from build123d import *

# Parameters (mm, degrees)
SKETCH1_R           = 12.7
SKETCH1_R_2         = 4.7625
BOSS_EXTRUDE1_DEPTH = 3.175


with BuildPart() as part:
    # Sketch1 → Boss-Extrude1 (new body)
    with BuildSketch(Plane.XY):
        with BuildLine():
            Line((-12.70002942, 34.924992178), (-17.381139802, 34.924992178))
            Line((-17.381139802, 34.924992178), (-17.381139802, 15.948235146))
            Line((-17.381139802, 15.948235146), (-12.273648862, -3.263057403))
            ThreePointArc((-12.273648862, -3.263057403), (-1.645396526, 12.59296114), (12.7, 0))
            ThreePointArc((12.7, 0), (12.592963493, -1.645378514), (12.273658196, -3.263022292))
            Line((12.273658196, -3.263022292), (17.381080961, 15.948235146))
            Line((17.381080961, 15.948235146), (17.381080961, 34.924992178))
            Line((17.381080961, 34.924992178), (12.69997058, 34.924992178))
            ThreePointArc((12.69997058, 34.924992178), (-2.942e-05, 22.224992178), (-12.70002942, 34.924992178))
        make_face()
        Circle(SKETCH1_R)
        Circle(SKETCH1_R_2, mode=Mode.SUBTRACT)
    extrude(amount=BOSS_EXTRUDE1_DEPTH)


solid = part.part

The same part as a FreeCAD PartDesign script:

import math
import FreeCAD as App
import Part
import Sketcher

V = App.Vector
Q = App.Units.Quantity

doc = App.newDocument("Part")
body = doc.addObject("PartDesign::Body", "Body")

# Sketch on XY plane
sketch1 = doc.addObject("Sketcher::SketchObject", "Sketch")
body.addObject(sketch1)
sketch1.AttachmentSupport = (doc.XY_Plane, [""])
sketch1.MapMode = "FlatFace"
sketch1.addGeometry([
    Part.LineSegment(V(-12.7, 34.9, 0), V(-17.4, 34.9, 0)),  # 0
    Part.LineSegment(V(-17.4, 34.9, 0), V(-17.4, 15.9, 0)),  # 1
    Part.LineSegment(V(-17.4, 15.9, 0), V(-12.3, -3.3, 0)),  # 2
    Part.ArcOfCircle(Part.Circle(V(0, 0, 0), V(0, 0, 1), 12.7), math.radians(-165), math.radians(-15)),  # 3
    Part.LineSegment(V(12.3, -3.3, 0), V(17.4, 15.9, 0)),  # 4
    Part.LineSegment(V(17.4, 15.9, 0), V(17.4, 34.9, 0)),  # 5
    Part.LineSegment(V(17.4, 34.9, 0), V(12.7, 34.9, 0)),  # 6
    Part.ArcOfCircle(Part.Circle(V(0, 34.9, 0), V(0, 0, 1), 12.7), math.radians(180), math.radians(360)),  # 7
    Part.Circle(V(0, 0, 0), V(0, 0, 1), 4.8),  # 8
], False)
sketch1.addConstraint([
    Sketcher.Constraint("Coincident", 0, 2, 1, 1),
    Sketcher.Constraint("Coincident", 1, 2, 2, 1),
    Sketcher.Constraint("Tangent", 2, 2, 3, 1),
    Sketcher.Constraint("Tangent", 3, 2, 4, 1),
    Sketcher.Constraint("Coincident", 4, 2, 5, 1),
    Sketcher.Constraint("Coincident", 5, 2, 6, 1),
    Sketcher.Constraint("Coincident", 6, 2, 7, 2),
    Sketcher.Constraint("Coincident", 7, 1, 0, 1),
    Sketcher.Constraint("Horizontal", 0),
    Sketcher.Constraint("Vertical", 1),
    Sketcher.Constraint("Vertical", 5),
    Sketcher.Constraint("Horizontal", 6),
    Sketcher.Constraint("Coincident", 3, 3, -1, 1),
    Sketcher.Constraint("Coincident", 8, 3, -1, 1),
    Sketcher.Constraint("Equal", 3, 7),
    Sketcher.Constraint("Horizontal", 7, 3, 0, 2),
    Sketcher.Constraint("Horizontal", 1, 2, 4, 2),
    Sketcher.Constraint("Horizontal", 0, 2, 5, 2),
    Sketcher.Constraint("Equal", 0, 6),
    Sketcher.Constraint("Radius", 3, Q("0.5 in")),
    Sketcher.Constraint("Diameter", 8, Q("0.375 in")),
    Sketcher.Constraint("DistanceX", 0, 2, 0, 1, Q("4.68111 mm")),
    Sketcher.Constraint("DistanceY", 1, 2, 1, 1, Q("18.976757 mm")),
    Sketcher.Constraint("DistanceX", 0, 2, -1, 1, Q("17.38114 mm")),
    Sketcher.Constraint("DistanceX", 2, 2, -1, 1, Q("12.273649 mm")),
])
pad1 = doc.addObject("PartDesign::Pad", "Pad")
body.addObject(pad1)
pad1.Profile = sketch1
pad1.Length = Q("0.125 in")

doc.recompute()
